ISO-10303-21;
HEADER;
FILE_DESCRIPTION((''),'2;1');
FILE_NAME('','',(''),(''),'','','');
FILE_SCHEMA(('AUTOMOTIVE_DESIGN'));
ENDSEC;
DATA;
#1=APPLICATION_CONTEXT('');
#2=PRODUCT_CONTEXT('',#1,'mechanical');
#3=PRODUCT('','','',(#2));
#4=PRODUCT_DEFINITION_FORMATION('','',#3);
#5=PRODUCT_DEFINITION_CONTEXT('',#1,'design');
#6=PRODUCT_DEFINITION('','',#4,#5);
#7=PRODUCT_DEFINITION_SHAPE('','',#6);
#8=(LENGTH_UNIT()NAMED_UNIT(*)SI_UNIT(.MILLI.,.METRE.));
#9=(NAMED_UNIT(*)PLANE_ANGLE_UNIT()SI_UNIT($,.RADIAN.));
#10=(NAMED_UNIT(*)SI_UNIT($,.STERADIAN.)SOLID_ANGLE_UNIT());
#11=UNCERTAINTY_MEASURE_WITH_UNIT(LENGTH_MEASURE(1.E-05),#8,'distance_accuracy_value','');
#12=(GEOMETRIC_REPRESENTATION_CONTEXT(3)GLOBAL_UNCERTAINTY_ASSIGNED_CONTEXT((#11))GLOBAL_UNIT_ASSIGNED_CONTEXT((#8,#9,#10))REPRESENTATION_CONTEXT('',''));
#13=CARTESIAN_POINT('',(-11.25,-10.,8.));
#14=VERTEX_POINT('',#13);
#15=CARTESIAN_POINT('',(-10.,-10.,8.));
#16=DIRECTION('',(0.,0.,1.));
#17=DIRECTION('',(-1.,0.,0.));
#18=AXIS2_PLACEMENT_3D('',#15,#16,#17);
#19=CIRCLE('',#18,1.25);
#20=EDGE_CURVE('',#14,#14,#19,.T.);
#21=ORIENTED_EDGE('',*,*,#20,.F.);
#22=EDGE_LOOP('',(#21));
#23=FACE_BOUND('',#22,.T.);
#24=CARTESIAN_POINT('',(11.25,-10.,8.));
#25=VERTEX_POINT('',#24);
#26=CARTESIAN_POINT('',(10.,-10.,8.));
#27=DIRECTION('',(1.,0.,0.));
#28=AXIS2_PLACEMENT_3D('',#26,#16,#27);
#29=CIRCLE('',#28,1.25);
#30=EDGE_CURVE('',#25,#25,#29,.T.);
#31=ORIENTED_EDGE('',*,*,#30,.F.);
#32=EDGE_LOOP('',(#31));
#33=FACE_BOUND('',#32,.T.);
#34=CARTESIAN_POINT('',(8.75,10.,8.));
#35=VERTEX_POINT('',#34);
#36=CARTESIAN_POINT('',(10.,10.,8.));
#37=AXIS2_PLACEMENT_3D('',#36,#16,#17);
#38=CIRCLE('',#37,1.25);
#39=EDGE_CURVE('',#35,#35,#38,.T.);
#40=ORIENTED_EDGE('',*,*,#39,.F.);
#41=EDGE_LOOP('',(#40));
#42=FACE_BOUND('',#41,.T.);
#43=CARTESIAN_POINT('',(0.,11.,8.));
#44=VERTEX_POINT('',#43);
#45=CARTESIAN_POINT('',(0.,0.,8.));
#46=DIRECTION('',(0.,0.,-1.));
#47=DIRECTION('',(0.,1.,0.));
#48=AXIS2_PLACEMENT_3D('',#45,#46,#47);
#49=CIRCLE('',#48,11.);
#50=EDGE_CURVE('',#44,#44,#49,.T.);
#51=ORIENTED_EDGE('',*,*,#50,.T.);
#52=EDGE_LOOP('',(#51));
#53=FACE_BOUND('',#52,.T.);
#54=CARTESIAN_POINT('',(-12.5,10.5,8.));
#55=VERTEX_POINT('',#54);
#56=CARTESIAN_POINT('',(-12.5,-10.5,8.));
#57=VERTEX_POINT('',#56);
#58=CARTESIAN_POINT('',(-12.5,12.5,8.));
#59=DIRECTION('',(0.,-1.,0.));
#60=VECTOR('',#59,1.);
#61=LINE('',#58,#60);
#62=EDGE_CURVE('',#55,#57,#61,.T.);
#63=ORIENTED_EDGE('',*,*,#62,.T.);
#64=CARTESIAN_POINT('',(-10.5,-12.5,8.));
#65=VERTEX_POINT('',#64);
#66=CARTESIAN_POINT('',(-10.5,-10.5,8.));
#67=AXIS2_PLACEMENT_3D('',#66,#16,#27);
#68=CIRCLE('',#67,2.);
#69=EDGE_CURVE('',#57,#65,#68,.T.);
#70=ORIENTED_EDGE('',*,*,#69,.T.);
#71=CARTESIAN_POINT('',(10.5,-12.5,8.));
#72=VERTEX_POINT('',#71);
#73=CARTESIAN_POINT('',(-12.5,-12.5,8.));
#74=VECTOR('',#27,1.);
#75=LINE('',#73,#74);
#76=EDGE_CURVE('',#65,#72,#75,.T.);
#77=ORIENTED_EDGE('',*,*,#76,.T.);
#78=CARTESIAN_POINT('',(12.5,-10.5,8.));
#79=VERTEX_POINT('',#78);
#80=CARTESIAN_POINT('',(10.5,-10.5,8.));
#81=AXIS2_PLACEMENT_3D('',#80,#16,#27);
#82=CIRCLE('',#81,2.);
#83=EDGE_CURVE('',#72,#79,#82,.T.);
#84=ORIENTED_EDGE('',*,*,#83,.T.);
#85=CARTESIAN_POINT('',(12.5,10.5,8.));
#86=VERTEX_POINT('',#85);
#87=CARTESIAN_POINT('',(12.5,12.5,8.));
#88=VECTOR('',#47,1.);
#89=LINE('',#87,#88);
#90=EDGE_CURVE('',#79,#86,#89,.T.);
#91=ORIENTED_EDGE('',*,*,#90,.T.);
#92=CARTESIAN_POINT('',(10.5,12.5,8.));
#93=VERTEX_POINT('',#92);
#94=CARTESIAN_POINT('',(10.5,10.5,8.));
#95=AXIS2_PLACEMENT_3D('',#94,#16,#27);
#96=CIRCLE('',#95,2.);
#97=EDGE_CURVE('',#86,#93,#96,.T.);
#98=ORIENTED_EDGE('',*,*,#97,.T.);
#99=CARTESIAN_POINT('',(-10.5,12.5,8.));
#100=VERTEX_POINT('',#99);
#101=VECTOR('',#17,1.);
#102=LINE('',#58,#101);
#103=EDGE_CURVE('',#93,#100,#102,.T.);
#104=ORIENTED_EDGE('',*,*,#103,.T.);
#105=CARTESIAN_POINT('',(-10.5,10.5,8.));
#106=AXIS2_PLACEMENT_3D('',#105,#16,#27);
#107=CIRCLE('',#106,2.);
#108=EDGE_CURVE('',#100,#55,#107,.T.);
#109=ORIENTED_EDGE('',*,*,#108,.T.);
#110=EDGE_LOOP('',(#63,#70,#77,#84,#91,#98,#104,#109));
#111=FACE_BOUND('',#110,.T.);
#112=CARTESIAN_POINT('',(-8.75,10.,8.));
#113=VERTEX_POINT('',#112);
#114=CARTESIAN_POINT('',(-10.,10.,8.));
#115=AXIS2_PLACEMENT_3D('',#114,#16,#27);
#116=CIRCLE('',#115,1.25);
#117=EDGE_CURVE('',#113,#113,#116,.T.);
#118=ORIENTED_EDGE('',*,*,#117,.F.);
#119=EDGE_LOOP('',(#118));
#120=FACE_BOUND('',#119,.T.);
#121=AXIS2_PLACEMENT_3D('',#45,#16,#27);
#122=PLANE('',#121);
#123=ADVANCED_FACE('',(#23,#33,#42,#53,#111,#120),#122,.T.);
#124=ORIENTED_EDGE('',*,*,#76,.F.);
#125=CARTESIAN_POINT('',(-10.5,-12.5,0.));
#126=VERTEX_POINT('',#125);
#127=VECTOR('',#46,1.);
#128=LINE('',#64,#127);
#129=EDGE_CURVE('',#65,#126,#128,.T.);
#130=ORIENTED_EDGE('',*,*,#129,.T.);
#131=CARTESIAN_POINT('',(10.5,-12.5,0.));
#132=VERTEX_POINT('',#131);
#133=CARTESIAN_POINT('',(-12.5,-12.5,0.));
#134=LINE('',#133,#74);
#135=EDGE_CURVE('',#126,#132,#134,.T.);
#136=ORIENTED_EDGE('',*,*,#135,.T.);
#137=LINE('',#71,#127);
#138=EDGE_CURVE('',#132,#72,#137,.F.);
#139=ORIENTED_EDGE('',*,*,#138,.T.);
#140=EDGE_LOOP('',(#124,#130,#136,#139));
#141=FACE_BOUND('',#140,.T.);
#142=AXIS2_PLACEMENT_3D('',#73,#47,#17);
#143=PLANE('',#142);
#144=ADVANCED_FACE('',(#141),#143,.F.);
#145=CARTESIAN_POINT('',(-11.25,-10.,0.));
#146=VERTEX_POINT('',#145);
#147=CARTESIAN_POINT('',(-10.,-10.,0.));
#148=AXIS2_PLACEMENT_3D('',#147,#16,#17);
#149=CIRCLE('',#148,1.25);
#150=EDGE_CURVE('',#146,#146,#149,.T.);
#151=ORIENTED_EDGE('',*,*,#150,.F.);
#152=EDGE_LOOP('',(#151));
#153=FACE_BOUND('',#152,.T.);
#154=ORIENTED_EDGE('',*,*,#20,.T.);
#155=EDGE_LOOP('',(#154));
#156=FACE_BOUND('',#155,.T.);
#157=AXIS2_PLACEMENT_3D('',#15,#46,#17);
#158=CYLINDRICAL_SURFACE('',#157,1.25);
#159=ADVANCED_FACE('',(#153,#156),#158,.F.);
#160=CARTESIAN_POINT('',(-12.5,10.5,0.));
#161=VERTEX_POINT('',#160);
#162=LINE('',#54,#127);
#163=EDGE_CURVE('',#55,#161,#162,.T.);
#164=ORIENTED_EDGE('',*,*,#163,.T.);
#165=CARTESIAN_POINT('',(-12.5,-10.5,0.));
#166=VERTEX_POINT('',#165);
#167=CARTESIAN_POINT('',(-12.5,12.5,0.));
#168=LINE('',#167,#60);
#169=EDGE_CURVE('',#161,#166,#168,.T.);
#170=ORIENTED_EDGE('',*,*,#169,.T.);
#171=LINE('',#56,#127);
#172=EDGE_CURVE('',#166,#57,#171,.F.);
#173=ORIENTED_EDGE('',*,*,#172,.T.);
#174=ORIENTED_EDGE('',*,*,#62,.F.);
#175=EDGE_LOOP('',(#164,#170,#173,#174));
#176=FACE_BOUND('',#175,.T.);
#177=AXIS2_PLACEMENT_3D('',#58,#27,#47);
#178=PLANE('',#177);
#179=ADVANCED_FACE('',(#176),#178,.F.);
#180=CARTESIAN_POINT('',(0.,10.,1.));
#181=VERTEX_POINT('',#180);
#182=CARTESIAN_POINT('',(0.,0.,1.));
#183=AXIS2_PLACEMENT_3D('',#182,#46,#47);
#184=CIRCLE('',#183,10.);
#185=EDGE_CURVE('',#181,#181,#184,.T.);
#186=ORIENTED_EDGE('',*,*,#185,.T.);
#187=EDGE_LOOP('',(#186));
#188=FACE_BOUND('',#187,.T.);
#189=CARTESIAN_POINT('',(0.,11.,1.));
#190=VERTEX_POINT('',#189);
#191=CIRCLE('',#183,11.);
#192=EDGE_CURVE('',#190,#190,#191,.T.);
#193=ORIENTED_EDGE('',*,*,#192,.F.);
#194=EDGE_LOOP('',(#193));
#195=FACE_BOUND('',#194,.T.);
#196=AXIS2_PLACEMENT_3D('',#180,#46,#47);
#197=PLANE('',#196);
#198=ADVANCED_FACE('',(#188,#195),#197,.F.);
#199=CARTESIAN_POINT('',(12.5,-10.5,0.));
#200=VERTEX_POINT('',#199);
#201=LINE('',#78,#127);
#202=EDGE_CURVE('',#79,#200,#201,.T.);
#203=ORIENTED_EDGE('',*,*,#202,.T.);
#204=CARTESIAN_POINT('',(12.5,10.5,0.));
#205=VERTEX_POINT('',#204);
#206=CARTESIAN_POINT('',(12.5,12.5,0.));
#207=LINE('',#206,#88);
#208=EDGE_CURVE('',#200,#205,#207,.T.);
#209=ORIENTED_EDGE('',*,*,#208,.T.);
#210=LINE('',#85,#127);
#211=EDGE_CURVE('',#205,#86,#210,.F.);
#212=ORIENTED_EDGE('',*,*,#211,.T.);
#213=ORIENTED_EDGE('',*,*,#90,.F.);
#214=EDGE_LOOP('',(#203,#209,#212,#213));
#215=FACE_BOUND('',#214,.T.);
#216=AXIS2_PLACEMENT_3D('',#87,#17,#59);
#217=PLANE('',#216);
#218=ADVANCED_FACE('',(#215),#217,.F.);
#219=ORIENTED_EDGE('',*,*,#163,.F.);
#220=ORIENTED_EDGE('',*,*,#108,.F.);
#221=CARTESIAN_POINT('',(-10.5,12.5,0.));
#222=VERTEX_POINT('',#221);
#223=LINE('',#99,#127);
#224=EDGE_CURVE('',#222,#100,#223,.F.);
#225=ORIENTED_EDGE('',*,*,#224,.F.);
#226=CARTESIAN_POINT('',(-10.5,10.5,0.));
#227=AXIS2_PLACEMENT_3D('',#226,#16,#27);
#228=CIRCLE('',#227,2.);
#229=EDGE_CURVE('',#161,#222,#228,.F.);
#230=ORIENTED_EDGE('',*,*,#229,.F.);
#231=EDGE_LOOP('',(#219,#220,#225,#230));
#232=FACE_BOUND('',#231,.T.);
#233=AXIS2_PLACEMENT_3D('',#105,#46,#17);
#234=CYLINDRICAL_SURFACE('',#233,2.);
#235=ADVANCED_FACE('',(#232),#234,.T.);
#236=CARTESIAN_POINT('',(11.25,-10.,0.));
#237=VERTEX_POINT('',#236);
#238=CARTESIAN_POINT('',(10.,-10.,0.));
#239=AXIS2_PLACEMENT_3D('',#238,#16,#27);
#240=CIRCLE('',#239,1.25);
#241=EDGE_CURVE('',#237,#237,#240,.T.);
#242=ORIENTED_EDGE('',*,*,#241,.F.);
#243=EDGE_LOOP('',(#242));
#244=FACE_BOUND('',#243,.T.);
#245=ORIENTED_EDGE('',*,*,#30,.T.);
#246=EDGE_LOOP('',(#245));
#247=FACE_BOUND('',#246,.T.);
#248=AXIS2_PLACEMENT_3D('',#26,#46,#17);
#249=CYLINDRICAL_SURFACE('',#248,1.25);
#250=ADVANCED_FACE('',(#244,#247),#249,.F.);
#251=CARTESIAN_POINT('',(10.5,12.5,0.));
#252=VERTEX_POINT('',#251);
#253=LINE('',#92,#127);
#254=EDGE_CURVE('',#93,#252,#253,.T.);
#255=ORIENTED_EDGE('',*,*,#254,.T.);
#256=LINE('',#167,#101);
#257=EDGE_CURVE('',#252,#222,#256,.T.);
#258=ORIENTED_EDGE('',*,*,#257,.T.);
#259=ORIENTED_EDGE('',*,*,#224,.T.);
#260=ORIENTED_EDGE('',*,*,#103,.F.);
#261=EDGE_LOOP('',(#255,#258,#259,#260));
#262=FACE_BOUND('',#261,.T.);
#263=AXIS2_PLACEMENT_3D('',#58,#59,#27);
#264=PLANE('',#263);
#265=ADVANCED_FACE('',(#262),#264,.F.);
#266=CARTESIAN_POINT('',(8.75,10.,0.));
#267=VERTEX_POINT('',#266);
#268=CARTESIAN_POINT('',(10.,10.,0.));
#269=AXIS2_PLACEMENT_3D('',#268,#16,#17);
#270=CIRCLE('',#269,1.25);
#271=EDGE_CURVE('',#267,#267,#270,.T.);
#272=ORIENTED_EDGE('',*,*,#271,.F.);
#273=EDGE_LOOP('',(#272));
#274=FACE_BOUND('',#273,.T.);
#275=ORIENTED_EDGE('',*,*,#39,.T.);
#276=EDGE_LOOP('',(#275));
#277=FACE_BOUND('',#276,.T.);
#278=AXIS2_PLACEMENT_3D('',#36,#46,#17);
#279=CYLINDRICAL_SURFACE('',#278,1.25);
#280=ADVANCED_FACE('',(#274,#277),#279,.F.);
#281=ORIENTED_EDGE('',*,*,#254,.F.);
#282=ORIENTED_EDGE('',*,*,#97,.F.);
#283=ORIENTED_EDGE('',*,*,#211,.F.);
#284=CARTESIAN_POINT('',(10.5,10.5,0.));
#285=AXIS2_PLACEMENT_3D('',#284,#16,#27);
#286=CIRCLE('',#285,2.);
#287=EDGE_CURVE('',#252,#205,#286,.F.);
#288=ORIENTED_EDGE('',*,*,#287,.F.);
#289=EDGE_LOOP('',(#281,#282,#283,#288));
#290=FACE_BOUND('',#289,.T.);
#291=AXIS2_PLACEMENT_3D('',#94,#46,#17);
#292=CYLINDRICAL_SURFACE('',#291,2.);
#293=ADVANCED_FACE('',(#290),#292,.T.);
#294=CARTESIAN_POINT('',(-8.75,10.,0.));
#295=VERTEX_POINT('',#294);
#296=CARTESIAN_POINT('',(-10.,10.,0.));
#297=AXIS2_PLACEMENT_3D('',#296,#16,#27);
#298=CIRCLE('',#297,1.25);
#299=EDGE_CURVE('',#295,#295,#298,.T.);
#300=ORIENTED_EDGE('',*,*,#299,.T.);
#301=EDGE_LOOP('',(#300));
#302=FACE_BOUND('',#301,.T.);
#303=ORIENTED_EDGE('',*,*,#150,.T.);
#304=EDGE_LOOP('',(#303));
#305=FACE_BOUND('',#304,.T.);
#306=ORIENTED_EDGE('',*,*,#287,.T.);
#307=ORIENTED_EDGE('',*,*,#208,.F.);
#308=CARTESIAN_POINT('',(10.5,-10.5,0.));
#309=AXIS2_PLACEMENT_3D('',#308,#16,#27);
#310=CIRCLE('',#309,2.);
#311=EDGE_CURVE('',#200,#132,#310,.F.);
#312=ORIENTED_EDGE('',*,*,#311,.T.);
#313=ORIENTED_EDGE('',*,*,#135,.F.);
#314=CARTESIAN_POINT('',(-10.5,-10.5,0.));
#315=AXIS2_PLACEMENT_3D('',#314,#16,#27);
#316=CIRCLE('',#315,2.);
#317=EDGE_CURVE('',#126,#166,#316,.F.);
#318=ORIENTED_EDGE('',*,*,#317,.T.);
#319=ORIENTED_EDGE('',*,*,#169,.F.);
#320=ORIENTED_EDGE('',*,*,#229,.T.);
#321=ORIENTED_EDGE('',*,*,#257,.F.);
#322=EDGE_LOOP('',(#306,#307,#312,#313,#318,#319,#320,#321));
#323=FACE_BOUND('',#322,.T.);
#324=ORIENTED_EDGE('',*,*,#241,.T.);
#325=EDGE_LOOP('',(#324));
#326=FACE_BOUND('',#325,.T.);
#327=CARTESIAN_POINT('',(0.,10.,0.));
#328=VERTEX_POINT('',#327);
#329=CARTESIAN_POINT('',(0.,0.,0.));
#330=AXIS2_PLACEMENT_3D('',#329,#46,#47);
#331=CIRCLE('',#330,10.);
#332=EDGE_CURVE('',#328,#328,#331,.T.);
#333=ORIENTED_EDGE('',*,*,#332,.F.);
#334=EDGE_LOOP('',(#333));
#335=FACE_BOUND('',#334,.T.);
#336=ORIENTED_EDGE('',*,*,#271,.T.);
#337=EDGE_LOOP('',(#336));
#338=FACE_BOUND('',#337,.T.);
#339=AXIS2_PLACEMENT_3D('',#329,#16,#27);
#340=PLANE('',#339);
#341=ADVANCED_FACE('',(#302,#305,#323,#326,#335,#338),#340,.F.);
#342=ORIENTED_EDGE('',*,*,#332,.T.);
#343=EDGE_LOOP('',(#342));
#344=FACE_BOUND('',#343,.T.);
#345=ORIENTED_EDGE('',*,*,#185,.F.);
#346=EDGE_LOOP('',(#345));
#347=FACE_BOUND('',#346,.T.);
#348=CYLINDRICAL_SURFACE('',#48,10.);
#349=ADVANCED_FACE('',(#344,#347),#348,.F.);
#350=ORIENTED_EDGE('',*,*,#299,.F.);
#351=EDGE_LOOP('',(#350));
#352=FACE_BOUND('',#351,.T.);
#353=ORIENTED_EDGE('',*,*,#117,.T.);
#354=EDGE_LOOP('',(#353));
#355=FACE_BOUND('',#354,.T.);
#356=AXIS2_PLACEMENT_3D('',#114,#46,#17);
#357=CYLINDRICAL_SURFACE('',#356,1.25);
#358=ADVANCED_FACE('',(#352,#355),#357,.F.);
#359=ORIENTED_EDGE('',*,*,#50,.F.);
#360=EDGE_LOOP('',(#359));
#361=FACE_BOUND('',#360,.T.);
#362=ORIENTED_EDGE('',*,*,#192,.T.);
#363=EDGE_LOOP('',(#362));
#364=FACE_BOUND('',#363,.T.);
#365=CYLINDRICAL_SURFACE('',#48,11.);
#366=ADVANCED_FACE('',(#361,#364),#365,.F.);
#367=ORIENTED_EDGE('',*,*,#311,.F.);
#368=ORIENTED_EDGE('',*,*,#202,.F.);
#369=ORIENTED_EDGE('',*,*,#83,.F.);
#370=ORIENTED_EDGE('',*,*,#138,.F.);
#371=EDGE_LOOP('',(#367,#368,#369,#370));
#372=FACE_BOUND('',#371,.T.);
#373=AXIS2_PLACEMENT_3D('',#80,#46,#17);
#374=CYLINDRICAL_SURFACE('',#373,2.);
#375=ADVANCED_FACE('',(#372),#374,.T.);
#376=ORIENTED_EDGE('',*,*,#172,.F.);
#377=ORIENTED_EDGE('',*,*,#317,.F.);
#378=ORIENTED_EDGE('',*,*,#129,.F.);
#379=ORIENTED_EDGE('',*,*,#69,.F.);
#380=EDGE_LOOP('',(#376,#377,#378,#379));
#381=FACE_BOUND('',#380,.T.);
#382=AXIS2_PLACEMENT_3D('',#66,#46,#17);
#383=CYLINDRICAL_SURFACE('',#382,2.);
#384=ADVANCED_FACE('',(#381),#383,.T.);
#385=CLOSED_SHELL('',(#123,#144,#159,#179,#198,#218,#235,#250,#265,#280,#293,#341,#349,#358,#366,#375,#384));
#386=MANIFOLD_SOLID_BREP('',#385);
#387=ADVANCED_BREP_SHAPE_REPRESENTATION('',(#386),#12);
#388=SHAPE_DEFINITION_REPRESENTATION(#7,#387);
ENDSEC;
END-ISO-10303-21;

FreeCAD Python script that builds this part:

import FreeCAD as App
import Part
import Sketcher
from FreeCAD import Vector
Q = App.Units.Quantity


def edges_at(feature, points):
    """Names of the edges that pass closest to the given points."""
    edges = feature.Shape.Edges
    near = lambda p: min(range(len(edges)), key=lambda i: edges[i].distToShape(Part.Vertex(*p))[0])
    return sorted({f"Edge{near(p) + 1}" for p in points})

doc = App.newDocument("Part")
body = doc.addObject("PartDesign::Body", "Body")

# Sketch on XY plane
sketch1 = body.newObject("Sketcher::SketchObject", "Sketch")
sketch1.AttachmentSupport = (doc.getObject("XY_Plane"), [""])
sketch1.MapMode = "FlatFace"
sketch1.addGeometry([
    Part.LineSegment(Vector(-12.5, 12.5, 0), Vector(-12.5, -12.5, 0)),  # 0
    Part.LineSegment(Vector(-12.5, -12.5, 0), Vector(12.5, -12.5, 0)),  # 1
    Part.LineSegment(Vector(12.5, -12.5, 0), Vector(12.5, 12.5, 0)),  # 2
    Part.LineSegment(Vector(12.5, 12.5, 0), Vector(-12.5, 12.5, 0)),  # 3
    Part.Circle(Vector(-10, -10, 0), Vector(0, 0, 1), 1.25),  # 4
    Part.Circle(Vector(10, -10, 0), Vector(0, 0, 1), 1.25),  # 5
    Part.Circle(Vector(-10, 10, 0), Vector(0, 0, 1), 1.25),  # 6
    Part.Circle(Vector(10, 10, 0), Vector(0, 0, 1), 1.25),  # 7
], False)
sketch1.addConstraint([
    Sketcher.Constraint("Coincident", 0, 2, 1, 1),
    Sketcher.Constraint("Coincident", 1, 2, 2, 1),
    Sketcher.Constraint("Coincident", 2, 2, 3, 1),
    Sketcher.Constraint("Coincident", 3, 2, 0, 1),
    Sketcher.Constraint("Vertical", 0),
    Sketcher.Constraint("Horizontal", 1),
    Sketcher.Constraint("Vertical", 2),
    Sketcher.Constraint("Horizontal", 3),
    Sketcher.Constraint("Equal", 4, 5),
    Sketcher.Constraint("Equal", 5, 6),
    Sketcher.Constraint("Equal", 6, 7),
    Sketcher.Constraint("Symmetric", 5, 3, 6, 3, -1, 1),
    Sketcher.Constraint("Symmetric", 4, 3, 7, 3, -1, 1),
    Sketcher.Constraint("Symmetric", 0, 2, 2, 2, -1, 1),
    Sketcher.Constraint("Symmetric", 4, 3, 5, 3, -2),
    Sketcher.Constraint("Equal", 3, 0),
    Sketcher.Constraint("Diameter", 4, Q("2.5 mm")),
    Sketcher.Constraint("DistanceX", 1, 1, 1, 2, Q("25 mm")),
    Sketcher.Constraint("DistanceX", 4, 3, -1, 1, Q("10 mm")),
    Sketcher.Constraint("DistanceY", 4, 3, -1, 1, Q("10 mm")),
])
pad1 = body.newObject("PartDesign::Pad", "Pad")
pad1.Profile = sketch1
pad1.Length = 8

# Sketch on YZ plane
sketch2 = body.newObject("Sketcher::SketchObject", "Sketch001")
sketch2.AttachmentSupport = (doc.getObject("YZ_Plane"), [""])
sketch2.MapMode = "FlatFace"
sketch2.addGeometry([
    Part.LineSegment(Vector(0, 8, 0), Vector(0, 0, 0)),  # 0
    Part.LineSegment(Vector(0, 0, 0), Vector(10, 0, 0)),  # 1
    Part.LineSegment(Vector(10, 0, 0), Vector(10, 1, 0)),  # 2
    Part.LineSegment(Vector(10, 1, 0), Vector(11, 1, 0)),  # 3
    Part.LineSegment(Vector(11, 1, 0), Vector(11, 8, 0)),  # 4
    Part.LineSegment(Vector(11, 8, 0), Vector(0, 8, 0)),  # 5
], False)
sketch2.addConstraint([
    Sketcher.Constraint("Coincident", 0, 2, 1, 1),
    Sketcher.Constraint("Coincident", 1, 2, 2, 1),
    Sketcher.Constraint("Coincident", 2, 2, 3, 1),
    Sketcher.Constraint("Coincident", 3, 2, 4, 1),
    Sketcher.Constraint("Coincident", 4, 2, 5, 1),
    Sketcher.Constraint("Coincident", 5, 2, 0, 1),
    Sketcher.Constraint("Vertical", 0),
    Sketcher.Constraint("Horizontal", 1),
    Sketcher.Constraint("Vertical", 2),
    Sketcher.Constraint("Horizontal", 3),
    Sketcher.Constraint("Vertical", 4),
    Sketcher.Constraint("Horizontal", 5),
    Sketcher.Constraint("Coincident", 0, 2, -1, 1),
    Sketcher.Constraint("Equal", 3, 2),
    Sketcher.Constraint("DistanceX", 1, 1, 1, 2, Q("10 mm")),
    Sketcher.Constraint("DistanceX", 3, 1, 3, 2, Q("1 mm")),
    Sketcher.Constraint("DistanceY", 0, 2, 0, 1, Q("8 mm")),
])
groove = body.newObject("PartDesign::Groove", "Groove")
groove.Profile = sketch2
groove.ReferenceAxis = (sketch2, ["V_Axis"])
groove.Angle = 360
doc.recompute()

fillet = body.newObject("PartDesign::Fillet", "Fillet")
fillet.Base = (groove, edges_at(groove, [
    (-12.5, 12.5, 4),
    (12.5, 12.5, 4),
    (12.5, -12.5, 4),
    (-12.5, -12.5, 4),
]))
fillet.Radius = 2

doc.recompute()
